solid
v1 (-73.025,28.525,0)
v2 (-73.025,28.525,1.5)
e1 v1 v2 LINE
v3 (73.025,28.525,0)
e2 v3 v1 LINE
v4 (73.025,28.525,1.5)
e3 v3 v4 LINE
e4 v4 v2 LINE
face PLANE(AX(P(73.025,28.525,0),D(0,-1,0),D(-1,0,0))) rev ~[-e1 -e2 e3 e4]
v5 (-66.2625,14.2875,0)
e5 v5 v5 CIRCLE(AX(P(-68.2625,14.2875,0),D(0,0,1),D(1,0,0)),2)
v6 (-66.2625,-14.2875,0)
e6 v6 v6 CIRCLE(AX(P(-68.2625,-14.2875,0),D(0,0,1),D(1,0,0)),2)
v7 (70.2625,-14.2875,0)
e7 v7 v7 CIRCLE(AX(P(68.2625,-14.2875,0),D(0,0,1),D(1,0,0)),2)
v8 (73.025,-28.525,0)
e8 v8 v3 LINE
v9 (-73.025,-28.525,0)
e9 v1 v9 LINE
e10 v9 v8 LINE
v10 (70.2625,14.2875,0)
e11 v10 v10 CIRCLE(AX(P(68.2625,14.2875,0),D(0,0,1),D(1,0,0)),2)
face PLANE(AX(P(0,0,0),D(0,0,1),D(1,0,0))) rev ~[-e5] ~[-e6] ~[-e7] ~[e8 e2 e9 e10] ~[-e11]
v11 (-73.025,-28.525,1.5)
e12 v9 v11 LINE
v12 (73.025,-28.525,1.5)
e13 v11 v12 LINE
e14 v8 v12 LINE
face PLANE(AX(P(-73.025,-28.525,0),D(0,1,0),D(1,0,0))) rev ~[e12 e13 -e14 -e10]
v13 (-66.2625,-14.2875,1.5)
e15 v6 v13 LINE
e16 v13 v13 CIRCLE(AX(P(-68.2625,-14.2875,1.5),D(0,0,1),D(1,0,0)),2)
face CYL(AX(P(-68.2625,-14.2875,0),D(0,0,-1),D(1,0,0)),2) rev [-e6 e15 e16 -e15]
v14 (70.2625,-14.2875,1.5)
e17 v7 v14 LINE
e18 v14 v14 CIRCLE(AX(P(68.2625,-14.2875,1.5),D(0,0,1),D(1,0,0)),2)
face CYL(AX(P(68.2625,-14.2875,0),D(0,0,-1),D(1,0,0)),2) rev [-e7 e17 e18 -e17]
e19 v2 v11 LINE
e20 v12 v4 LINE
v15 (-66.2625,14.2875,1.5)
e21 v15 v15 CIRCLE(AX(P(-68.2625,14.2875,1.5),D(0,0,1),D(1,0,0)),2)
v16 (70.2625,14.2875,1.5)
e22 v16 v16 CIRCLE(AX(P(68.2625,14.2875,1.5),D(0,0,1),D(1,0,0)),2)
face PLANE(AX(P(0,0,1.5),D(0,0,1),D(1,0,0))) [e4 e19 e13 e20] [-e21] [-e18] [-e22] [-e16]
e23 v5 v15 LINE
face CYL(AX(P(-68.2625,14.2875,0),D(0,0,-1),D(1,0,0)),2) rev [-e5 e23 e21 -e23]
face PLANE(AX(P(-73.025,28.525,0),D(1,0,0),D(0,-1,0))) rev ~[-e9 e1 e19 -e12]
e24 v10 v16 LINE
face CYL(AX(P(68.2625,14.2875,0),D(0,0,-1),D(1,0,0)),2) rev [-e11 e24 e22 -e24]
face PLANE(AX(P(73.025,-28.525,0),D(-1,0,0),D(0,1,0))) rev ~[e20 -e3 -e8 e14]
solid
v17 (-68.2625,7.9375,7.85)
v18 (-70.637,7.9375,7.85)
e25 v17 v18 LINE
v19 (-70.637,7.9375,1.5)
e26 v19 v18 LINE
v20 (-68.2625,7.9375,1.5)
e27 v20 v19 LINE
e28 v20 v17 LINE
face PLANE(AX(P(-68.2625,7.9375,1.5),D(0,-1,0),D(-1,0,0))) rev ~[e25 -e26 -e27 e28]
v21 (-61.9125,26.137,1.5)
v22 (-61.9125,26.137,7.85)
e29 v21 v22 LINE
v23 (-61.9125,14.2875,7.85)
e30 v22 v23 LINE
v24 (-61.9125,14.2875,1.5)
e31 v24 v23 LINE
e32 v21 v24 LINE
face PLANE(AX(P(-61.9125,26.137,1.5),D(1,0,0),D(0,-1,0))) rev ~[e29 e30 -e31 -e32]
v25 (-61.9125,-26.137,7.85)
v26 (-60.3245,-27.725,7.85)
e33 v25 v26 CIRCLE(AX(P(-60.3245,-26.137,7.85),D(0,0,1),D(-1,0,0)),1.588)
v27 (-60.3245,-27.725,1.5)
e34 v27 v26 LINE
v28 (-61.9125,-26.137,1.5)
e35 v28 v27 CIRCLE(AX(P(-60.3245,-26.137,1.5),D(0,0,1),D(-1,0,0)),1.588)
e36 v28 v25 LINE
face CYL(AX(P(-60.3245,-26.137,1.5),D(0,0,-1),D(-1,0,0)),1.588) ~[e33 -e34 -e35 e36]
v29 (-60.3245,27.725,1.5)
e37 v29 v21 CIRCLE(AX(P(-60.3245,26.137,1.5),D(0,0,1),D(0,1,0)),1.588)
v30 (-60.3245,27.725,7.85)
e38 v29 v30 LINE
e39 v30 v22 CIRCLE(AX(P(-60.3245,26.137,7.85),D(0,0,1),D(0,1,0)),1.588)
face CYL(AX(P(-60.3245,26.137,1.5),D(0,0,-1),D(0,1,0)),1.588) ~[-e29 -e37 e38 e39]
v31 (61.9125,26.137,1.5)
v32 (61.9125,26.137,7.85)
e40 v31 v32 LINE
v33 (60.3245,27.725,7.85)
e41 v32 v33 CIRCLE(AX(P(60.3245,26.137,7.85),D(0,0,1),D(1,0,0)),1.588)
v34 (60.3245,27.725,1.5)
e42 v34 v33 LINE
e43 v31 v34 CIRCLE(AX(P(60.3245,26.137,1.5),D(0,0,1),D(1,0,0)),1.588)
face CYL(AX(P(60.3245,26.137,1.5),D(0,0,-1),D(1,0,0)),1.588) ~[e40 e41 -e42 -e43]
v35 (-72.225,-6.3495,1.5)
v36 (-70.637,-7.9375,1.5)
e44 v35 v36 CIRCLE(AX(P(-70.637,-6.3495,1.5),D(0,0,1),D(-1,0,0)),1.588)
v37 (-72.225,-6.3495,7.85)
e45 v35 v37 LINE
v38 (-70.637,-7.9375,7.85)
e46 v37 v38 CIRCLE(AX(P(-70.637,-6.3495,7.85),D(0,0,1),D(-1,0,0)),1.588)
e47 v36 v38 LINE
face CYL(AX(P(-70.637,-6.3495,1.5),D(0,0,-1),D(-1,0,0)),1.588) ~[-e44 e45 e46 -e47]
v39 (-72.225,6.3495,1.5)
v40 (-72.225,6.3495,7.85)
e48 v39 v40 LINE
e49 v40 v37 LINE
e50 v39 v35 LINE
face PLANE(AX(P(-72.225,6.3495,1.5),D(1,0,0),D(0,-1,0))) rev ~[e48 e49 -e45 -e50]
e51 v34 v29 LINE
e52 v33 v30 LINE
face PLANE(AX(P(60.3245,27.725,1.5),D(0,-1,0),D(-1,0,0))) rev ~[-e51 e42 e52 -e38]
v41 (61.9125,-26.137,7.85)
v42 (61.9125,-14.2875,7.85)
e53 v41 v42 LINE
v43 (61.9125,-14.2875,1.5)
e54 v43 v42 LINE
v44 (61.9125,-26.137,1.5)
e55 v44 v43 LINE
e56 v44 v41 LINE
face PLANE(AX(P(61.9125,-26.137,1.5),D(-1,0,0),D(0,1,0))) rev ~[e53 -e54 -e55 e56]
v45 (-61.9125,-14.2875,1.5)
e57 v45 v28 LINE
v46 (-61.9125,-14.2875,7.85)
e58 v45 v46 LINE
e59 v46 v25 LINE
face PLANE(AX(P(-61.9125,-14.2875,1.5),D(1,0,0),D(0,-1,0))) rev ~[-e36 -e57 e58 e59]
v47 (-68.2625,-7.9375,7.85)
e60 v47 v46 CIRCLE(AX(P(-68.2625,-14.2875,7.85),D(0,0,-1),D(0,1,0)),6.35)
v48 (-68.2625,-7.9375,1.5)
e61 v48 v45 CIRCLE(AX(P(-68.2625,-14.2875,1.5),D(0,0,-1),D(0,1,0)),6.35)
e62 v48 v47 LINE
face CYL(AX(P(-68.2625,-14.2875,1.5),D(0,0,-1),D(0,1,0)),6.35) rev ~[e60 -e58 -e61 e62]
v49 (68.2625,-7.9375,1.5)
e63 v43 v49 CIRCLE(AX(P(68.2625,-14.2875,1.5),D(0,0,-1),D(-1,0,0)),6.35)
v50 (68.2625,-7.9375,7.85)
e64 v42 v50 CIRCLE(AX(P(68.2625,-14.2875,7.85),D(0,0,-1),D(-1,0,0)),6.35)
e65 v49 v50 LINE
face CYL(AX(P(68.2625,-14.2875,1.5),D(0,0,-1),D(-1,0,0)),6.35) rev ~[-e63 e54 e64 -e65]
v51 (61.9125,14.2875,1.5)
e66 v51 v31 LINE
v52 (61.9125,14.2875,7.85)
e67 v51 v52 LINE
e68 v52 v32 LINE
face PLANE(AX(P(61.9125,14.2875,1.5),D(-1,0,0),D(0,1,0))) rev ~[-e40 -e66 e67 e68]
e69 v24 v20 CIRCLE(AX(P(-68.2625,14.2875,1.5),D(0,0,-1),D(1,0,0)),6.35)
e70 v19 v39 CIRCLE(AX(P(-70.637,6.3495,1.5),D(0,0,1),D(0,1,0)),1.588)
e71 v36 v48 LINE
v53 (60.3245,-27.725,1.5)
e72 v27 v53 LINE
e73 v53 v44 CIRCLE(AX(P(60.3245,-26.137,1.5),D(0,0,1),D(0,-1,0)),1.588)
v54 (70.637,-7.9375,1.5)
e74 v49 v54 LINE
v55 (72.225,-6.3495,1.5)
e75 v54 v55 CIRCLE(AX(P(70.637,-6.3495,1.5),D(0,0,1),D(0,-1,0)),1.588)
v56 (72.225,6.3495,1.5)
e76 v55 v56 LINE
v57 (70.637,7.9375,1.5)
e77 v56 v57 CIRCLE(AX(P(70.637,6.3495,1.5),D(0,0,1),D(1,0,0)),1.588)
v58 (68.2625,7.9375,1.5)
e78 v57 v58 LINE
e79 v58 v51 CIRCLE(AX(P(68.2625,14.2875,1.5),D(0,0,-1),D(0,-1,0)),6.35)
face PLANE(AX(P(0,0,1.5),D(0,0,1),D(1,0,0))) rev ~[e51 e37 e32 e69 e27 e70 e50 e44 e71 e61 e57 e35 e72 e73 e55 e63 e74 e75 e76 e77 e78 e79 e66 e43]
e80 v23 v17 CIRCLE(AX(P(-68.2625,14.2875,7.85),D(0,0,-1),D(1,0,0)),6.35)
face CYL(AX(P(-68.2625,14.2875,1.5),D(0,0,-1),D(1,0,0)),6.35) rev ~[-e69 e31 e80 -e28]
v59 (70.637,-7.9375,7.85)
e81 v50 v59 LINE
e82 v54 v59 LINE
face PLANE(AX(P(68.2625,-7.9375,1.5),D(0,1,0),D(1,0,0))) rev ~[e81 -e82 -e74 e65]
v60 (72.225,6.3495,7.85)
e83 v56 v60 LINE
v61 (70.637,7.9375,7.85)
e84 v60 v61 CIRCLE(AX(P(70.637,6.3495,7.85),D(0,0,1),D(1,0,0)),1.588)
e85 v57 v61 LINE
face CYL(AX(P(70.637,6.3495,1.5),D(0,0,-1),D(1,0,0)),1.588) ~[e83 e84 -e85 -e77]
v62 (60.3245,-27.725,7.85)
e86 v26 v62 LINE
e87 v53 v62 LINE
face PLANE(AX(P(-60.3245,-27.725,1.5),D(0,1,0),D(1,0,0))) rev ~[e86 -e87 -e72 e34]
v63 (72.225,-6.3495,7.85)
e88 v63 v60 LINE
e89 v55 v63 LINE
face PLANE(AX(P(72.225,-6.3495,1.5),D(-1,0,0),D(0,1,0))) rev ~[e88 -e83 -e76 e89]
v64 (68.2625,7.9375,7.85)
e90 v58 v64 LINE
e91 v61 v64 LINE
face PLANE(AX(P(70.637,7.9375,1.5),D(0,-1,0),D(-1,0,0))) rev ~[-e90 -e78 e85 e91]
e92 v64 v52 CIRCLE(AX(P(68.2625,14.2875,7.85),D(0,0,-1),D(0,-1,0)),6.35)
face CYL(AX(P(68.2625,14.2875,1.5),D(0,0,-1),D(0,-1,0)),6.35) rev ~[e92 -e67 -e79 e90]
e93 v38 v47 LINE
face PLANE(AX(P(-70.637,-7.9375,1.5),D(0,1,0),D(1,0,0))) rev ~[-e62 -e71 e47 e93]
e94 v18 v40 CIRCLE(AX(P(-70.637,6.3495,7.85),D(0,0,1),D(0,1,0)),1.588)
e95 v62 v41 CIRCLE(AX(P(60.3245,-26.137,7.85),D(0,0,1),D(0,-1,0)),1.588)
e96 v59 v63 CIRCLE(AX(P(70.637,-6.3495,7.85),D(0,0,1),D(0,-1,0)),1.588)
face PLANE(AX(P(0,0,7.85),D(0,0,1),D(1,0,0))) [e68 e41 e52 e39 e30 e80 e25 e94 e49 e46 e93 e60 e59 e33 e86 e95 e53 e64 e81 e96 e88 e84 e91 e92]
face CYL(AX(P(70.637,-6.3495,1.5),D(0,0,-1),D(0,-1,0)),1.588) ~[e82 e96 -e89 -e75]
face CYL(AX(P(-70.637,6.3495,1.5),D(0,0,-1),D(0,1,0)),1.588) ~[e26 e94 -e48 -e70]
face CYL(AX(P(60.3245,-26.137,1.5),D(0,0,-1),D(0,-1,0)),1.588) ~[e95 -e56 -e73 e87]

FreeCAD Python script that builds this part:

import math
import FreeCAD as App
import Part
import Sketcher
from FreeCAD import Vector
Q = App.Units.Quantity

doc = App.newDocument("Part")
params = doc.addObject("Spreadsheet::Sheet", "Params")
for row, (alias, value) in enumerate([
    ("sketch1_width", "5.75 in"),
    ("pad1_length", "1.5 mm"),
    ("sketch2_radius", "0.25 in"),
    ("pad2_length", "0.25 in"),
], start=1):
    params.set(f"A{row}", alias)
    params.set(f"B{row}", "=" + value)
    params.setAlias(f"B{row}", alias)

body = doc.addObject("PartDesign::Body", "Body")

# Sketch on XY plane
sketch1 = body.newObject("Sketcher::SketchObject", "Sketch")
sketch1.AttachmentSupport = (doc.getObject("XY_Plane"), [""])
sketch1.MapMode = "FlatFace"
sketch1.addGeometry([
    Part.LineSegment(Vector(73, -28.5, 0), Vector(73, 28.5, 0)),  # 0
    Part.LineSegment(Vector(73, 28.5, 0), Vector(-73, 28.5, 0)),  # 1
    Part.LineSegment(Vector(-73, 28.5, 0), Vector(-73, -28.5, 0)),  # 2
    Part.LineSegment(Vector(-73, -28.5, 0), Vector(73, -28.5, 0)),  # 3
    Part.Circle(Vector(-68.3, -14.3, 0), Vector(0, 0, 1), 2),  # 4
    Part.Circle(Vector(68.3, -14.3, 0), Vector(0, 0, 1), 2),  # 5
    Part.Circle(Vector(-68.3, 14.3, 0), Vector(0, 0, 1), 2),  # 6
    Part.Circle(Vector(68.3, 14.3, 0), Vector(0, 0, 1), 2),  # 7
], False)
sketch1.addConstraint([
    Sketcher.Constraint("Coincident", 0, 2, 1, 1),
    Sketcher.Constraint("Coincident", 1, 2, 2, 1),
    Sketcher.Constraint("Coincident", 2, 2, 3, 1),
    Sketcher.Constraint("Coincident", 3, 2, 0, 1),
    Sketcher.Constraint("Vertical", 0),
    Sketcher.Constraint("Horizontal", 1),
    Sketcher.Constraint("Vertical", 2),
    Sketcher.Constraint("Horizontal", 3),
    Sketcher.Constraint("Equal", 4, 5),
    Sketcher.Constraint("Equal", 5, 6),
    Sketcher.Constraint("Equal", 6, 7),
    Sketcher.Constraint("Symmetric", 5, 3, 6, 3, -1, 1),
    Sketcher.Constraint("Symmetric", 4, 3, 7, 3, -1, 1),
    Sketcher.Constraint("Symmetric", 0, 2, 2, 2, -1, 1),
    Sketcher.Constraint("Symmetric", 4, 3, 5, 3, -2),
    Sketcher.Constraint("DistanceX", 1, 2, 1, 1, Q("5.75 in")),
    Sketcher.Constraint("Diameter", 4, 4.0),
    Sketcher.Constraint("DistanceX", 4, 3, -1, 1, Q("2.6875 in")),
    Sketcher.Constraint("DistanceY", 4, 3, -1, 1, Q("0.5625 in")),
    Sketcher.Constraint("DistanceY", 0, 1, 0, 2, 57.05),
])
sketch1.setExpression("Constraints[15]", "Params.sketch1_width")
pad1 = body.newObject("PartDesign::Pad", "Pad")
pad1.Profile = sketch1
pad1.setExpression("Length", "Params.pad1_length")
body2 = doc.addObject("PartDesign::Body", "Body001")

# Sketch on XY plane
sketch2 = body2.newObject("Sketcher::SketchObject", "Sketch001")
sketch2.AttachmentSupport = (doc.getObject("XY_Plane001"), [""])
sketch2.MapMode = "FlatFace"
sketch2.AttachmentOffset = App.Placement(Vector(0, 0, 1.5), App.Rotation())
sketch2.addGeometry([
    Part.LineSegment(Vector(70.6, 7.9, 0), Vector(68.3, 7.9, 0)),  # 0
    Part.ArcOfCircle(Part.Circle(Vector(68.3, 14.3, 0), Vector(0, 0, 1), 6.3), math.radians(180), math.radians(270)),  # 1
    Part.LineSegment(Vector(61.9, 14.3, 0), Vector(61.9, 26.1, 0)),  # 2
    Part.ArcOfCircle(Part.Circle(Vector(60.3, 26.1, 0), Vector(0, 0, 1), 1.6), math.radians(0), math.radians(90)),  # 3
    Part.LineSegment(Vector(60.3, 27.7, 0), Vector(-60.3, 27.7, 0)),  # 4
    Part.ArcOfCircle(Part.Circle(Vector(-60.3, 26.1, 0), Vector(0, 0, 1), 1.6), math.radians(90), math.radians(180)),  # 5
    Part.LineSegment(Vector(-61.9, 26.1, 0), Vector(-61.9, 14.3, 0)),  # 6
    Part.ArcOfCircle(Part.Circle(Vector(-68.3, 14.3, 0), Vector(0, 0, 1), 6.3), math.radians(-90), math.radians(0)),  # 7
    Part.LineSegment(Vector(-68.3, 7.9, 0), Vector(-70.6, 7.9, 0)),  # 8
    Part.ArcOfCircle(Part.Circle(Vector(-70.6, 6.3, 0), Vector(0, 0, 1), 1.6), math.radians(90), math.radians(180)),  # 9
    Part.LineSegment(Vector(-72.2, 6.3, 0), Vector(-72.2, -6.3, 0)),  # 10
    Part.ArcOfCircle(Part.Circle(Vector(-70.6, -6.3, 0), Vector(0, 0, 1), 1.6), math.radians(180), math.radians(270)),  # 11
    Part.LineSegment(Vector(-70.6, -7.9, 0), Vector(-68.3, -7.9, 0)),  # 12
    Part.ArcOfCircle(Part.Circle(Vector(-68.3, -14.3, 0), Vector(0, 0, 1), 6.3), math.radians(0), math.radians(90)),  # 13
    Part.LineSegment(Vector(-61.9, -14.3, 0), Vector(-61.9, -26.1, 0)),  # 14
    Part.ArcOfCircle(Part.Circle(Vector(-60.3, -26.1, 0), Vector(0, 0, 1), 1.6), math.radians(180), math.radians(270)),  # 15
    Part.LineSegment(Vector(-60.3, -27.7, 0), Vector(60.3, -27.7, 0)),  # 16
    Part.ArcOfCircle(Part.Circle(Vector(60.3, -26.1, 0), Vector(0, 0, 1), 1.6), math.radians(-90), math.radians(0)),  # 17
    Part.LineSegment(Vector(61.9, -26.1, 0), Vector(61.9, -14.3, 0)),  # 18
    Part.ArcOfCircle(Part.Circle(Vector(68.3, -14.3, 0), Vector(0, 0, 1), 6.3), math.radians(90), math.radians(180)),  # 19
    Part.LineSegment(Vector(68.3, -7.9, 0), Vector(70.6, -7.9, 0)),  # 20
    Part.ArcOfCircle(Part.Circle(Vector(70.6, -6.3, 0), Vector(0, 0, 1), 1.6), math.radians(-90), math.radians(0)),  # 21
    Part.LineSegment(Vector(72.2, -6.3, 0), Vector(72.2, 6.3, 0)),  # 22
    Part.ArcOfCircle(Part.Circle(Vector(70.6, 6.3, 0), Vector(0, 0, 1), 1.6), math.radians(0), math.radians(90)),  # 23
], False)
sketch2.addConstraint([
    Sketcher.Constraint("Tangent", 0, 2, 1, 2),
    Sketcher.Constraint("Tangent", 1, 1, 2, 1),
    Sketcher.Constraint("Tangent", 2, 2, 3, 1),
    Sketcher.Constraint("Tangent", 3, 2, 4, 1),
    Sketcher.Constraint("Tangent", 4, 2, 5, 1),
    Sketcher.Constraint("Tangent", 5, 2, 6, 1),
    Sketcher.Constraint("Tangent", 6, 2, 7, 2),
    Sketcher.Constraint("Tangent", 7, 1, 8, 1),
    Sketcher.Constraint("Tangent", 8, 2, 9, 1),
    Sketcher.Constraint("Tangent", 9, 2, 10, 1),
    Sketcher.Constraint("Tangent", 10, 2, 11, 1),
    Sketcher.Constraint("Tangent", 11, 2, 12, 1),
    Sketcher.Constraint("Tangent", 12, 2, 13, 2),
    Sketcher.Constraint("Tangent", 13, 1, 14, 1),
    Sketcher.Constraint("Tangent", 14, 2, 15, 1),
    Sketcher.Constraint("Tangent", 15, 2, 16, 1),
    Sketcher.Constraint("Tangent", 16, 2, 17, 1),
    Sketcher.Constraint("Tangent", 17, 2, 18, 1),
    Sketcher.Constraint("Tangent", 18, 2, 19, 2),
    Sketcher.Constraint("Tangent", 19, 1, 20, 1),
    Sketcher.Constraint("Tangent", 20, 2, 21, 1),
    Sketcher.Constraint("Tangent", 21, 2, 22, 1),
    Sketcher.Constraint("Tangent", 22, 2, 23, 1),
    Sketcher.Constraint("Tangent", 23, 2, 0, 1),
    Sketcher.Constraint("Horizontal", 0),
    Sketcher.Constraint("Vertical", 2),
    Sketcher.Constraint("Horizontal", 4),
    Sketcher.Constraint("Vertical", 6),
    Sketcher.Constraint("Horizontal", 8),
    Sketcher.Constraint("Vertical", 10),
    Sketcher.Constraint("Horizontal", 12),
    Sketcher.Constraint("Vertical", 14),
    Sketcher.Constraint("Horizontal", 16),
    Sketcher.Constraint("Vertical", 18),
    Sketcher.Constraint("Horizontal", 20),
    Sketcher.Constraint("Vertical", 22),
    Sketcher.Constraint("Equal", 3, 5),
    Sketcher.Constraint("Equal", 1, 7),
    Sketcher.Constraint("Equal", 5, 9),
    Sketcher.Constraint("Equal", 9, 11),
    Sketcher.Constraint("Equal", 7, 13),
    Sketcher.Constraint("Equal", 11, 15),
    Sketcher.Constraint("Equal", 15, 17),
    Sketcher.Constraint("Equal", 13, 19),
    Sketcher.Constraint("Equal", 17, 21),
    Sketcher.Constraint("Equal", 21, 23),
    Sketcher.Constraint("Symmetric", 1, 3, 13, 3, -1, 1),
    Sketcher.Constraint("Symmetric", 5, 3, 17, 3, -1, 1),
    Sketcher.Constraint("Symmetric", 9, 3, 21, 3, -1, 1),
    Sketcher.Constraint("Symmetric", 1, 3, 7, 3, -2),
    Sketcher.Constraint("Radius", 1, Q("0.25 in")),
    Sketcher.Constraint("Radius", 3, 1.588),
    Sketcher.Constraint("DistanceX", -1, 1, 1, 3, Q("2.6875 in")),
    Sketcher.Constraint("DistanceY", -1, 1, 1, 3, Q("0.5625 in")),
    Sketcher.Constraint("DistanceX", 0, 2, 0, 1, 2.3745),
    Sketcher.Constraint("DistanceY", 2, 1, 2, 2, 11.8495),
])
sketch2.setExpression("Constraints[50]", "Params.sketch2_radius")
pad2 = body2.newObject("PartDesign::Pad", "Pad001")
pad2.Profile = sketch2
pad2.setExpression("Length", "Params.pad2_length")

doc.recompute()
